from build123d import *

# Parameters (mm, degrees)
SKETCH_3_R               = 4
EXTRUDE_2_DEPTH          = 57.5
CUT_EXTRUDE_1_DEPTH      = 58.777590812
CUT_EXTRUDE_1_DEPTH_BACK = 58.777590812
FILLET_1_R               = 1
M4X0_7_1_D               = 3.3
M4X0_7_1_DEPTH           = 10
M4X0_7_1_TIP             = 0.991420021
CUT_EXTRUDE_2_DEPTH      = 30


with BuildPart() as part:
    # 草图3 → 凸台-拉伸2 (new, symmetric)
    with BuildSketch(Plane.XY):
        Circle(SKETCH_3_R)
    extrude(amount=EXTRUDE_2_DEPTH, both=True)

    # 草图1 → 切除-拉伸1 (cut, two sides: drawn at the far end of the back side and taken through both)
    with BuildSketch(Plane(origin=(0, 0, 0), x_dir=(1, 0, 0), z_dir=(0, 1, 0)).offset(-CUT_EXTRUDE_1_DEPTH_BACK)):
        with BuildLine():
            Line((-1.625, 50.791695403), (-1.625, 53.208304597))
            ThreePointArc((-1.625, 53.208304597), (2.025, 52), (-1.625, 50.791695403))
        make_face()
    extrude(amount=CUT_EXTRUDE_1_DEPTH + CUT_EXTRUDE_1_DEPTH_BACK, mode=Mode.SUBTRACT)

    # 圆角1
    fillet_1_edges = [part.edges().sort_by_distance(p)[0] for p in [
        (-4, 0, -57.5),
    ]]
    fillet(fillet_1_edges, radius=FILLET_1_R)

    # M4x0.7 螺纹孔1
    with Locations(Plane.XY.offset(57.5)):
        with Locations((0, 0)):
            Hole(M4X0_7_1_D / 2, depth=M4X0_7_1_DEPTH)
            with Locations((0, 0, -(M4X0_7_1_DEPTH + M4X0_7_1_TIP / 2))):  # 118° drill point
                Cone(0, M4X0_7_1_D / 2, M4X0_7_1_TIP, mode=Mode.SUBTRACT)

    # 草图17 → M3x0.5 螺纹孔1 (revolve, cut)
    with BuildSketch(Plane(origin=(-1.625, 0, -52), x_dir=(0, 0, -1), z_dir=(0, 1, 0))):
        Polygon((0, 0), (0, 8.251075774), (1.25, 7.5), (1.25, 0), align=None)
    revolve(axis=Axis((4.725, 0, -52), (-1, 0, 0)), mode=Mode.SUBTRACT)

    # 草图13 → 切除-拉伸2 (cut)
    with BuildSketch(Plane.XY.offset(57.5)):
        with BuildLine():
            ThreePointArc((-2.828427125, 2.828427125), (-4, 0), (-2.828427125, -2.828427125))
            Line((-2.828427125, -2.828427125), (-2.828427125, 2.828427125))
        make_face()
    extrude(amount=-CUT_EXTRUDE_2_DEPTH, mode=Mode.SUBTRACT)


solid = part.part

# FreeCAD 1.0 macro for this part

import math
import FreeCAD as App
import Part
import Sketcher
Q = App.Units.Quantity


def edges_at(feature, points):
    """Names of the edges that pass closest to the given points."""
    edges = feature.Shape.Edges
    near = lambda p: min(range(len(edges)), key=lambda i: edges[i].distToShape(Part.Vertex(*p))[0])
    return sorted({f"Edge{near(p) + 1}" for p in points})

doc = App.newDocument("Part")
body = doc.addObject("PartDesign::Body", "Body")

# Sketch on XY plane
sketch1 = doc.addObject("Sketcher::SketchObject", "Sketch")
body.addObject(sketch1)
sketch1.AttachmentSupport = (doc.XY_Plane, [""])
sketch1.MapMode = "FlatFace"
sketch1.addGeometry(Part.Circle(App.Vector(0, 0, 0), App.Vector(0, 0, 1), 4), False)
sketch1.addConstraint(Sketcher.Constraint("Coincident", 0, 3, -1, 1))
sketch1.addConstraint(Sketcher.Constraint("Diameter", 0, 8.0))
pad1 = doc.addObject("PartDesign::Pad", "Pad")
body.addObject(pad1)
pad1.Profile = sketch1
pad1.Length = 115
pad1.Midplane = True

# Sketch on XZ plane
sketch2 = doc.addObject("Sketcher::SketchObject", "Sketch001")
body.addObject(sketch2)
sketch2.AttachmentSupport = (doc.XZ_Plane, [""])
sketch2.MapMode = "FlatFace"
sketch2.addGeometry(Part.LineSegment(App.Vector(-1.6, -53.2, 0), App.Vector(-1.6, -50.8, 0)), False)
sketch2.addGeometry(Part.ArcOfCircle(Part.Circle(App.Vector(0, -52, 0), App.Vector(0, 0, 1), 2), math.radians(-143), math.radians(143)), False)
sketch2.addConstraint(Sketcher.Constraint("Coincident", 0, 1, 1, 1))
sketch2.addConstraint(Sketcher.Constraint("Coincident", 1, 2, 0, 2))
sketch2.addConstraint(Sketcher.Constraint("Vertical", 0))
sketch2.addConstraint(Sketcher.Constraint("PointOnObject", 1, 3, -2))
sketch2.addConstraint(Sketcher.Constraint("DistanceY", 1, 3, -1, 1, 52.0))
sketch2.addConstraint(Sketcher.Constraint("Radius", 1, 2.025))
sketch2.addConstraint(Sketcher.Constraint("DistanceX", 0, 1, -1, 1, 1.625))
pocket1 = doc.addObject("PartDesign::Pocket", "Pocket")
body.addObject(pocket1)
pocket1.Profile = sketch2
pocket1.Type = "ThroughAll"
pocket1.Midplane = True
doc.recompute()

fillet = doc.addObject("PartDesign::Fillet", "Fillet")
body.addObject(fillet)
fillet.Base = (pocket1, edges_at(pocket1, [(-4, 0, -57.5)]))
fillet.Radius = 1

# Sketch on XY plane
sketch3 = doc.addObject("Sketcher::SketchObject", "Sketch002")
body.addObject(sketch3)
sketch3.AttachmentSupport = (doc.XY_Plane, [""])
sketch3.MapMode = "FlatFace"
sketch3.AttachmentOffset = App.Placement(App.Vector(0, 0, 57.5), App.Rotation())
sketch3.addGeometry(Part.Circle(App.Vector(0, 0, 0), App.Vector(0, 0, 1), 1.6), False)
sketch3.addConstraint(Sketcher.Constraint("Coincident", 0, 3, -1, 1))
sketch3.addConstraint(Sketcher.Constraint("Diameter", 0, 3.3))
doc.recompute()
hole = doc.addObject("PartDesign::Hole", "Hole")
body.addObject(hole)
hole.Profile = sketch3
hole.ThreadType = "None"
hole.Diameter = 3.3
hole.DepthType = "Dimension"
hole.Depth = 10
hole.DrillPoint = "Angled"
hole.DrillPointAngle = 118

# Sketch on XZ plane
sketch4 = doc.addObject("Sketcher::SketchObject", "Sketch003")
body.addObject(sketch4)
sketch4.AttachmentSupport = (doc.XZ_Plane, [""])
sketch4.MapMode = "FlatFace"
sketch4.addGeometry(Part.LineSegment(App.Vector(-9.9, -52, 0), App.Vector(-1.6, -52, 0)), False)
sketch4.addGeometry(Part.LineSegment(App.Vector(-1.6, -52, 0), App.Vector(-1.6, -53.2, 0)), False)
sketch4.addGeometry(Part.LineSegment(App.Vector(-1.6, -53.2, 0), App.Vector(-9.1, -53.2, 0)), False)
sketch4.addGeometry(Part.LineSegment(App.Vector(-9.1, -53.2, 0), App.Vector(-9.9, -52, 0)), False)
sketch4.addGeometry(Part.LineSegment(App.Vector(-1.6, -52, 0), App.Vector(-9.9, -52, 0)), True)  # axis
sketch4.addConstraint(Sketcher.Constraint("Coincident", 0, 2, 1, 1))
sketch4.addConstraint(Sketcher.Constraint("Coincident", 1, 2, 2, 1))
sketch4.addConstraint(Sketcher.Constraint("Coincident", 2, 2, 3, 1))
sketch4.addConstraint(Sketcher.Constraint("Coincident", 3, 2, 0, 1))
sketch4.addConstraint(Sketcher.Constraint("Horizontal", 0))
sketch4.addConstraint(Sketcher.Constraint("Vertical", 1))
sketch4.addConstraint(Sketcher.Constraint("Horizontal", 2))
sketch4.addConstraint(Sketcher.Constraint("Horizontal", 4))
sketch4.addConstraint(Sketcher.Constraint("Coincident", 4, 1, 0, 2))
sketch4.addConstraint(Sketcher.Constraint("Equal", 0, 4))
sketch4.addConstraint(Sketcher.Constraint("Angle", 3, Q("121 deg")))
sketch4.addConstraint(Sketcher.Constraint("DistanceX", 2, 2, 2, 1, 7.5))
sketch4.addConstraint(Sketcher.Constraint("DistanceY", 0, 2, -1, 1, 52.0))
sketch4.addConstraint(Sketcher.Constraint("DistanceY", 1, 2, 1, 1, 1.25))
sketch4.addConstraint(Sketcher.Constraint("DistanceX", 0, 2, -1, 1, 1.625))
groove = doc.addObject("PartDesign::Groove", "Groove")
body.addObject(groove)
groove.Profile = sketch4
groove.ReferenceAxis = (sketch4, ["Axis0"])
groove.Angle = 360

# Sketch on XY plane
sketch5 = doc.addObject("Sketcher::SketchObject", "Sketch004")
body.addObject(sketch5)
sketch5.AttachmentSupport = (doc.XY_Plane, [""])
sketch5.MapMode = "FlatFace"
sketch5.AttachmentOffset = App.Placement(App.Vector(0, 0, 57.5), App.Rotation())
sketch5.addGeometry(Part.ArcOfCircle(Part.Circle(App.Vector(0, 0, 0), App.Vector(0, 0, 1), 4), math.radians(135), math.radians(225)), False)
sketch5.addGeometry(Part.LineSegment(App.Vector(-2.8, -2.8, 0), App.Vector(-2.8, 2.8, 0)), False)
sketch5.addConstraint(Sketcher.Constraint("Coincident", 0, 1, 1, 2))
sketch5.addConstraint(Sketcher.Constraint("Coincident", 1, 1, 0, 2))
sketch5.addConstraint(Sketcher.Constraint("Vertical", 1))
sketch5.addConstraint(Sketcher.Constraint("Coincident", 0, 3, -1, 1))
sketch5.addConstraint(Sketcher.Constraint("Radius", 0, 4.0))
sketch5.addConstraint(Sketcher.Constraint("DistanceY", 1, 1, 1, 2, 5.656854))
pocket2 = doc.addObject("PartDesign::Pocket", "Pocket001")
body.addObject(pocket2)
pocket2.Profile = sketch5
pocket2.Length = 30

doc.recompute()
